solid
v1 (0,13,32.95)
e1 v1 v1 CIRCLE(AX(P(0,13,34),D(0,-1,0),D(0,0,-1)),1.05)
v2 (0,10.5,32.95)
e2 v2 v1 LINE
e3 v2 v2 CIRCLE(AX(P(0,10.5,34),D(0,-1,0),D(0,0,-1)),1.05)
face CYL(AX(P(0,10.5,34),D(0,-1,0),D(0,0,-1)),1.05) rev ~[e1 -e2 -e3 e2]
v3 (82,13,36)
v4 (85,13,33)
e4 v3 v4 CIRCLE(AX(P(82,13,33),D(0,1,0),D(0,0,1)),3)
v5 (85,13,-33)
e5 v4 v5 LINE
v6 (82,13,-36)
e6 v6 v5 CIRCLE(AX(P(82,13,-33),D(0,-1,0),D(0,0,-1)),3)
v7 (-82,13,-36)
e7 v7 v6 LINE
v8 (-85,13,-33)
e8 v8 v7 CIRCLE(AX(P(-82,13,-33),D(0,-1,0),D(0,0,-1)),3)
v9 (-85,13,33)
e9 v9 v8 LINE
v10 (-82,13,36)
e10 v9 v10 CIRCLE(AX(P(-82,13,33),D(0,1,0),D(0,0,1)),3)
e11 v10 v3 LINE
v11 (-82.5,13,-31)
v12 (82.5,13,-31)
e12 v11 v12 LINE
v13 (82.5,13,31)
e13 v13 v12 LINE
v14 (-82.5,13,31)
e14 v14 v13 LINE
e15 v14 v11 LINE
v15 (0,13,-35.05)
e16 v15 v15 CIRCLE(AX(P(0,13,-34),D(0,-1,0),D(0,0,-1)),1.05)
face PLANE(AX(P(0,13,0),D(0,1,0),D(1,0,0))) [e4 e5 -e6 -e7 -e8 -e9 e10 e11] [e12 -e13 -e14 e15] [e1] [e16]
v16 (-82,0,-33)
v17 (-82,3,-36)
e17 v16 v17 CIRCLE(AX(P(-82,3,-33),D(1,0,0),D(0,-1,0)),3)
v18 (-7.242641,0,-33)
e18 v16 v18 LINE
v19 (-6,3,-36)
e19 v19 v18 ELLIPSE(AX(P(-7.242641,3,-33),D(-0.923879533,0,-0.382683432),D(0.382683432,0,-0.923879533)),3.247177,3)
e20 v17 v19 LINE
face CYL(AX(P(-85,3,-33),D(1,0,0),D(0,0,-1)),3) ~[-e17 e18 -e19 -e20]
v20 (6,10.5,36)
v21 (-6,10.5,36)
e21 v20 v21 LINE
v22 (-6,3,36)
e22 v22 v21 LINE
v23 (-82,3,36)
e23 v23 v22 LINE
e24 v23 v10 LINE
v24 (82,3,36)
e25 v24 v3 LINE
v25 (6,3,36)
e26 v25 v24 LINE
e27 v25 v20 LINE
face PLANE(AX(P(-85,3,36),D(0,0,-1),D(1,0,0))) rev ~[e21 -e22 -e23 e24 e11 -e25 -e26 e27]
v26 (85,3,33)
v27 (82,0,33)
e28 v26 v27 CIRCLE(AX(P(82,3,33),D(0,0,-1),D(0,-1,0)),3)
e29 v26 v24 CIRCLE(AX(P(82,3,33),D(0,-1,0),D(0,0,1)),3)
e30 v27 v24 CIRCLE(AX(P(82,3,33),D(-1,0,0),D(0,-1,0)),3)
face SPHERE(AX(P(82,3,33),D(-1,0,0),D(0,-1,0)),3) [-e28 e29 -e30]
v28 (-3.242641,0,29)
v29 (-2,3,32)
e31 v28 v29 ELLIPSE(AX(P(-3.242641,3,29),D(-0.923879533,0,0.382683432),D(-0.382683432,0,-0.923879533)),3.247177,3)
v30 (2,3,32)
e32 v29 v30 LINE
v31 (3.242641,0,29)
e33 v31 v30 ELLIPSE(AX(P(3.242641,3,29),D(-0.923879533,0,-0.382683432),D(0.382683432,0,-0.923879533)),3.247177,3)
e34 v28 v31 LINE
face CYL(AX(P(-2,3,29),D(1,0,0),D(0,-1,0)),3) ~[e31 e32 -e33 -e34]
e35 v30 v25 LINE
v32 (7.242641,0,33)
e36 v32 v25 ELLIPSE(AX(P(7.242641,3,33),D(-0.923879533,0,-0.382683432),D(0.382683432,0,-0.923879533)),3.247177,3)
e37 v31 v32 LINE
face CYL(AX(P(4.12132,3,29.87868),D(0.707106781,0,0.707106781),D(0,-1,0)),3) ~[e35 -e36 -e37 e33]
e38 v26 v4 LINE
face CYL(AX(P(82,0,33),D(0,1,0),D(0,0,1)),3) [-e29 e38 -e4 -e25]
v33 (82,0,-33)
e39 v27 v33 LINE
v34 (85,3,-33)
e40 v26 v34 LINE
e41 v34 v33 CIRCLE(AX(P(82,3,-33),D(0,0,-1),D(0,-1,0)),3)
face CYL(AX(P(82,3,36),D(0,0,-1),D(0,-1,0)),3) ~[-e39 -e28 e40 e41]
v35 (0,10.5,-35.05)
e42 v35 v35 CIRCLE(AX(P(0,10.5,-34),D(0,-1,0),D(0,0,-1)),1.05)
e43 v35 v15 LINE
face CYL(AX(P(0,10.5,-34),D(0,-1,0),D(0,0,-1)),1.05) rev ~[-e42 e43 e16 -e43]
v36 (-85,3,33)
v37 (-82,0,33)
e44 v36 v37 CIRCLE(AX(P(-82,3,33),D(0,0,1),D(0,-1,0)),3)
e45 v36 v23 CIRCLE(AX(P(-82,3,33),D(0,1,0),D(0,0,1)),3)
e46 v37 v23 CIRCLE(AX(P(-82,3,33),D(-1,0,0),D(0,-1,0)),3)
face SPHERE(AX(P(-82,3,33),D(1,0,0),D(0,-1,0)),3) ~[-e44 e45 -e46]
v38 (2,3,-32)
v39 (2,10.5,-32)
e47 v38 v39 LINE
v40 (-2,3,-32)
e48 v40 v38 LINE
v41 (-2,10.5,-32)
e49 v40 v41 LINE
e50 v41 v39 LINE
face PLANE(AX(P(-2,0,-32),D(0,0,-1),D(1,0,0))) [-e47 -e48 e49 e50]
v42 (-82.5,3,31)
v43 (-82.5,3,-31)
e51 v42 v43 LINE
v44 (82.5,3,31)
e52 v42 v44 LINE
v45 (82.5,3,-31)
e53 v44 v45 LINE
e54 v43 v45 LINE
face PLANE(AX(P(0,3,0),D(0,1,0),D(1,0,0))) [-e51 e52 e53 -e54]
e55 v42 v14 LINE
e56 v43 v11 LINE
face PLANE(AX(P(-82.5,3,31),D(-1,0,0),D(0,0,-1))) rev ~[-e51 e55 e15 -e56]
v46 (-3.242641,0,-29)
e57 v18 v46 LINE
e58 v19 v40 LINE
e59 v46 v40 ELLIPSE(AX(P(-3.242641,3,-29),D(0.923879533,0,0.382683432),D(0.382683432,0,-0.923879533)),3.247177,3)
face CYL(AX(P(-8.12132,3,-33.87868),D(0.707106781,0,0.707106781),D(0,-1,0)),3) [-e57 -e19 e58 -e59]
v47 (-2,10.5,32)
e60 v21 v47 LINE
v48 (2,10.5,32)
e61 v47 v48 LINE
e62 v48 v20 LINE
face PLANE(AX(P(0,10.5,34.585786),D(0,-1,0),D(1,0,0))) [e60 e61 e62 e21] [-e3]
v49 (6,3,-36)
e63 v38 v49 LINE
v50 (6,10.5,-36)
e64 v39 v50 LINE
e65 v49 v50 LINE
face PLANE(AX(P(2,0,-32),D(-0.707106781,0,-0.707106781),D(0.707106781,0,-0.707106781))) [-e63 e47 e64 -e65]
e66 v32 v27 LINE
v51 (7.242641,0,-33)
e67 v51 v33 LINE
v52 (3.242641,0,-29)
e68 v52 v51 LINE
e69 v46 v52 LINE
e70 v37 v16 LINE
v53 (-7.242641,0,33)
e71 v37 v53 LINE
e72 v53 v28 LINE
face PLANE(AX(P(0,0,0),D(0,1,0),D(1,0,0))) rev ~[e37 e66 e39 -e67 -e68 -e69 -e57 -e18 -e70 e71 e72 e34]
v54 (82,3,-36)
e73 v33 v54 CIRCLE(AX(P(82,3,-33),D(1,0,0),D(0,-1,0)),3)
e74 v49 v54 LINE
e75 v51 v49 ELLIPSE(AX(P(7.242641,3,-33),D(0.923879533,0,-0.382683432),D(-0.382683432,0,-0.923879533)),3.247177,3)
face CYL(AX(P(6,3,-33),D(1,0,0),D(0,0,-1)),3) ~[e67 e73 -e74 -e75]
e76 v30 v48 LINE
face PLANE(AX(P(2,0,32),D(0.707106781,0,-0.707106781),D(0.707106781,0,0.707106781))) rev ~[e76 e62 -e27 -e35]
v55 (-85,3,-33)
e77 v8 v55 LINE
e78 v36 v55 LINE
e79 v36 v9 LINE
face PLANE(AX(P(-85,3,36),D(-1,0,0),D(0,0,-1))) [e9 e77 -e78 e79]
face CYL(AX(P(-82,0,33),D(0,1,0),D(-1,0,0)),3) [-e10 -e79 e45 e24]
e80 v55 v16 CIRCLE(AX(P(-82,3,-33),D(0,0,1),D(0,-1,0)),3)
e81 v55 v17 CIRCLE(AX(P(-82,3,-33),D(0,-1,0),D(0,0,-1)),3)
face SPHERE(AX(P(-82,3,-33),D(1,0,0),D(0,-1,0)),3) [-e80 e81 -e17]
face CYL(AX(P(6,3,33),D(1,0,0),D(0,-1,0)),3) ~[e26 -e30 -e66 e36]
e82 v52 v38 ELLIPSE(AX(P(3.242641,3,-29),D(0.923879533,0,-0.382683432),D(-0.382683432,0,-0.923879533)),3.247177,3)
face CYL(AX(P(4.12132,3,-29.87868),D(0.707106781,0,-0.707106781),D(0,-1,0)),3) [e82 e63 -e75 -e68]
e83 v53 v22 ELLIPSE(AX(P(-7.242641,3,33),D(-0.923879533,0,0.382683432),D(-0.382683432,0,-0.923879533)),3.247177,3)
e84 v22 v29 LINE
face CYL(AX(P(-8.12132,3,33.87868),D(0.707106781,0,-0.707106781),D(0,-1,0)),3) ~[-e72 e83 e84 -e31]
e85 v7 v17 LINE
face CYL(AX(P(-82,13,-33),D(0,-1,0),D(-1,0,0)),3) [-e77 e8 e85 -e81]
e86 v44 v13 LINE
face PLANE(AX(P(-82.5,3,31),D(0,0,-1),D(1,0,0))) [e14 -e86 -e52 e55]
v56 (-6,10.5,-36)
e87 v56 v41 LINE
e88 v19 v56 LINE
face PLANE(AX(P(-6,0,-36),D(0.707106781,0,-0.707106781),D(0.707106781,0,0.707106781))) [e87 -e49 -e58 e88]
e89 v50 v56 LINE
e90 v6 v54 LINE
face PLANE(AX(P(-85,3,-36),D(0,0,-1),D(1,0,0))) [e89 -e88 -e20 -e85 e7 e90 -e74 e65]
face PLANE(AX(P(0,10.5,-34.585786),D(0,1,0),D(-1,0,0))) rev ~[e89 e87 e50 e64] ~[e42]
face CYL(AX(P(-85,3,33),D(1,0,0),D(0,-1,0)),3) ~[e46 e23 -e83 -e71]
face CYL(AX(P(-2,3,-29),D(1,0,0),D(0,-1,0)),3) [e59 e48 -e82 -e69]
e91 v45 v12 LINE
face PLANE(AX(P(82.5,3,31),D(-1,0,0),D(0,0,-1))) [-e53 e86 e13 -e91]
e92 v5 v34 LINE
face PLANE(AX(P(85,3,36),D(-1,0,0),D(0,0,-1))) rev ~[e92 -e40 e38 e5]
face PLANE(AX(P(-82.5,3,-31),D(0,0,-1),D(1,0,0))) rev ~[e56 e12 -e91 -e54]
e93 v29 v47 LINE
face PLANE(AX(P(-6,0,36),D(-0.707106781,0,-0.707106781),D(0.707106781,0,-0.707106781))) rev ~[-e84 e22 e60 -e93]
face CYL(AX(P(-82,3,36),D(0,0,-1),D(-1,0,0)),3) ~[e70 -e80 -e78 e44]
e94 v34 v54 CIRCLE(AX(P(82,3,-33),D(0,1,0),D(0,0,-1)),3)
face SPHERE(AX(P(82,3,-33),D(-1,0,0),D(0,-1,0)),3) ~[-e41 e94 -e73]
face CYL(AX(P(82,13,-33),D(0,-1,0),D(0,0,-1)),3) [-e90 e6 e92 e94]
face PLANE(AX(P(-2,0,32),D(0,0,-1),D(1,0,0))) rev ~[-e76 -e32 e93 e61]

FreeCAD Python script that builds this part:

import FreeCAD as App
import Part
import Sketcher
from FreeCAD import Vector


def edges_at(feature, points):
    """Names of the edges that pass closest to the given points."""
    edges = feature.Shape.Edges
    near = lambda p: min(range(len(edges)), key=lambda i: edges[i].distToShape(Part.Vertex(*p))[0])
    return sorted({f"Edge{near(p) + 1}" for p in points})


def add_polygon(sketch, points):
    """Adds a closed chain of lines whose ends are joined by coincident constraints."""
    first, n = sketch.GeometryCount, len(points)
    for a, b in zip(points, points[1:] + points[:1]):
        sketch.addGeometry(Part.LineSegment(App.Vector(*a, 0), App.Vector(*b, 0)), False)
    for i in range(n):
        sketch.addConstraint(Sketcher.Constraint("Coincident", first + i, 2, first + (i + 1) % n, 1))

doc = App.newDocument("Part")
params = doc.addObject("Spreadsheet::Sheet", "Params")
for row, (alias, value) in enumerate([
    ("sketch1_width", "170 mm"),
    ("sketch1_height", "72 mm"),
    ("pad1_length", "3 mm"),
    ("sketch2_width", "170 mm"),
    ("sketch2_width2", "165 mm"),
    ("sketch2_height", "72 mm"),
    ("sketch2_height2", "62 mm"),
    ("pad2_length", "10 mm"),
    ("sketch3_width", "4 mm"),
    ("sketch3_width2", "12 mm"),
    ("pocket1_length", "10.5 mm"),
    ("sketch4_diameter", "2.1 mm"),
    ("pocket2_length", "10.5 mm"),
    ("sketch5_diameter", "2.1 mm"),
    ("pocket3_length", "10.5 mm"),
    ("fillet_radius", "3 mm"),
], start=1):
    params.set(f"A{row}", alias)
    params.set(f"B{row}", "=" + value)
    params.setAlias(f"B{row}", alias)

body = doc.addObject("PartDesign::Body", "Body")

# Sketch on XZ plane
sketch1 = body.newObject("Sketcher::SketchObject", "Sketch")
sketch1.AttachmentSupport = (doc.getObject("XZ_Plane"), [""])
sketch1.MapMode = "FlatFace"
add_polygon(sketch1, [(-85, -36), (-85, 36), (85, 36), (85, -36)])  # lines 0-3
sketch1.addConstraint(Sketcher.Constraint("Vertical", 0))
sketch1.addConstraint(Sketcher.Constraint("Horizontal", 1))
sketch1.addConstraint(Sketcher.Constraint("Vertical", 2))
sketch1.addConstraint(Sketcher.Constraint("Horizontal", 3))
sketch1.addConstraint(Sketcher.Constraint("Symmetric", 0, 2, 2, 2, -1, 1))
sketch1.addConstraint(Sketcher.Constraint("DistanceX", 1, 1, 1, 2, 170.0))
sketch1.addConstraint(Sketcher.Constraint("DistanceY", 0, 1, 0, 2, 72.0))
sketch1.setExpression("Constraints[9]", "Params.sketch1_width")
sketch1.setExpression("Constraints[10]", "Params.sketch1_height")
pad1 = body.newObject("PartDesign::Pad", "Pad")
pad1.Profile = sketch1
pad1.setExpression("Length", "Params.pad1_length")
pad1.Reversed = True

# Sketch on XZ plane
sketch2 = body.newObject("Sketcher::SketchObject", "Sketch001")
sketch2.AttachmentSupport = (doc.getObject("XZ_Plane"), [""])
sketch2.MapMode = "FlatFace"
sketch2.AttachmentOffset = App.Placement(Vector(0, 0, -3), App.Rotation())
add_polygon(sketch2, [(-85, -36), (-85, 36), (85, 36), (85, -36)])  # lines 0-3
add_polygon(sketch2, [(82, 31), (-82, 31), (-82, -31), (82, -31)])  # lines 4-7
sketch2.addConstraint(Sketcher.Constraint("Vertical", 0))
sketch2.addConstraint(Sketcher.Constraint("Horizontal", 1))
sketch2.addConstraint(Sketcher.Constraint("Vertical", 2))
sketch2.addConstraint(Sketcher.Constraint("Horizontal", 3))
sketch2.addConstraint(Sketcher.Constraint("Horizontal", 4))
sketch2.addConstraint(Sketcher.Constraint("Vertical", 5))
sketch2.addConstraint(Sketcher.Constraint("Horizontal", 6))
sketch2.addConstraint(Sketcher.Constraint("Vertical", 7))
sketch2.addConstraint(Sketcher.Constraint("Symmetric", 0, 2, 2, 2, -1, 1))
sketch2.addConstraint(Sketcher.Constraint("Symmetric", 4, 2, 6, 2, -1, 1))
sketch2.addConstraint(Sketcher.Constraint("DistanceX", 1, 1, 1, 2, 170.0))
sketch2.addConstraint(Sketcher.Constraint("DistanceX", 4, 2, 4, 1, 165.0))
sketch2.addConstraint(Sketcher.Constraint("DistanceY", 0, 1, 0, 2, 72.0))
sketch2.addConstraint(Sketcher.Constraint("DistanceY", 5, 2, 5, 1, 62.0))
sketch2.setExpression("Constraints[18]", "Params.sketch2_width")
sketch2.setExpression("Constraints[19]", "Params.sketch2_width2")
sketch2.setExpression("Constraints[20]", "Params.sketch2_height")
sketch2.setExpression("Constraints[21]", "Params.sketch2_height2")
pad2 = body.newObject("PartDesign::Pad", "Pad001")
pad2.Profile = sketch2
pad2.setExpression("Length", "Params.pad2_length")
pad2.Reversed = True

# Sketch on XZ plane
sketch3 = body.newObject("Sketcher::SketchObject", "Sketch002")
sketch3.AttachmentSupport = (doc.getObject("XZ_Plane"), [""])
sketch3.MapMode = "FlatFace"
add_polygon(sketch3, [(-6, 36), (-2, 32), (2, 32), (6, 36)])  # lines 0-3
add_polygon(sketch3, [(-6, -36), (6, -36), (2, -32), (-2, -32)])  # lines 4-7
sketch3.addConstraint(Sketcher.Constraint("Horizontal", 1))
sketch3.addConstraint(Sketcher.Constraint("Horizontal", 3))
sketch3.addConstraint(Sketcher.Constraint("Horizontal", 4))
sketch3.addConstraint(Sketcher.Constraint("Horizontal", 6))
sketch3.addConstraint(Sketcher.Constraint("Symmetric", 3, 2, 4, 2, -1, 1))
sketch3.addConstraint(Sketcher.Constraint("Symmetric", 0, 2, 5, 2, -1, 1))
sketch3.addConstraint(Sketcher.Constraint("Perpendicular", 0, 2))
sketch3.addConstraint(Sketcher.Constraint("Perpendicular", 5, 7))
sketch3.addConstraint(Sketcher.Constraint("Vertical", 2, 2, 4, 2))
sketch3.addConstraint(Sketcher.Constraint("Vertical", 1, 2, 5, 2))
sketch3.addConstraint(Sketcher.Constraint("Vertical", 0, 2, 6, 2))
sketch3.addConstraint(Sketcher.Constraint("DistanceX", 1, 1, 1, 2, 4.0))
sketch3.addConstraint(Sketcher.Constraint("DistanceX", 3, 2, 3, 1, 12.0))
sketch3.addConstraint(Sketcher.Constraint("DistanceY", -1, 1, 0, 2, 32.0))
sketch3.setExpression("Constraints[19]", "Params.sketch3_width")
sketch3.setExpression("Constraints[20]", "Params.sketch3_width2")
pocket1 = body.newObject("PartDesign::Pocket", "Pocket")
pocket1.Profile = sketch3
pocket1.setExpression("Length", "Params.pocket1_length")

# Sketch on XZ plane
sketch4 = body.newObject("Sketcher::SketchObject", "Sketch003")
sketch4.AttachmentSupport = (doc.getObject("XZ_Plane"), [""])
sketch4.MapMode = "FlatFace"
sketch4.AttachmentOffset = App.Placement(Vector(0, 0, -10.5), App.Rotation())
sketch4.addGeometry(Part.Circle(Vector(0, 34, 0), Vector(0, 0, 1), 1.1), False)
sketch4.addConstraint(Sketcher.Constraint("PointOnObject", 0, 3, -2))
sketch4.addConstraint(Sketcher.Constraint("Diameter", 0, 2.1))
sketch4.addConstraint(Sketcher.Constraint("DistanceY", -1, 1, 0, 3, 34.0))
sketch4.setExpression("Constraints[1]", "Params.sketch4_diameter")
pocket2 = body.newObject("PartDesign::Pocket", "Pocket001")
pocket2.Profile = sketch4
pocket2.setExpression("Length", "Params.pocket2_length")

# Sketch on XZ plane
sketch5 = body.newObject("Sketcher::SketchObject", "Sketch004")
sketch5.AttachmentSupport = (doc.getObject("XZ_Plane"), [""])
sketch5.MapMode = "FlatFace"
sketch5.AttachmentOffset = App.Placement(Vector(0, 0, -10.5), App.Rotation())
sketch5.addGeometry(Part.Circle(Vector(0, -34, 0), Vector(0, 0, 1), 1.1), False)
sketch5.addConstraint(Sketcher.Constraint("PointOnObject", 0, 3, -2))
sketch5.addConstraint(Sketcher.Constraint("Diameter", 0, 2.1))
sketch5.addConstraint(Sketcher.Constraint("DistanceY", 0, 3, -1, 1, 34.0))
sketch5.setExpression("Constraints[1]", "Params.sketch5_diameter")
pocket3 = body.newObject("PartDesign::Pocket", "Pocket002")
pocket3.Profile = sketch5
pocket3.setExpression("Length", "Params.pocket3_length")
doc.recompute()

fillet = body.newObject("PartDesign::Fillet", "Fillet")
fillet.Base = (pocket3, edges_at(pocket3, [
    (45.5, 0, 36),
    (-45.5, 0, -36),
    (-4, 0, 34),
    (0, 0, 32),
    (4, 0, 34),
    (-45.5, 0, 36),
    (4, 0, -34),
    (0, 0, -32),
    (-85, 0, 0),
    (-4, 0, -34),
    (45.5, 0, -36),
    (85, 0, 0),
    (85, 6.5, 36),
    (-85, 6.5, 36),
    (-85, 6.5, -36),
    (85, 6.5, -36),
]))
fillet.setExpression("Radius", "Params.fillet_radius")

doc.recompute()
